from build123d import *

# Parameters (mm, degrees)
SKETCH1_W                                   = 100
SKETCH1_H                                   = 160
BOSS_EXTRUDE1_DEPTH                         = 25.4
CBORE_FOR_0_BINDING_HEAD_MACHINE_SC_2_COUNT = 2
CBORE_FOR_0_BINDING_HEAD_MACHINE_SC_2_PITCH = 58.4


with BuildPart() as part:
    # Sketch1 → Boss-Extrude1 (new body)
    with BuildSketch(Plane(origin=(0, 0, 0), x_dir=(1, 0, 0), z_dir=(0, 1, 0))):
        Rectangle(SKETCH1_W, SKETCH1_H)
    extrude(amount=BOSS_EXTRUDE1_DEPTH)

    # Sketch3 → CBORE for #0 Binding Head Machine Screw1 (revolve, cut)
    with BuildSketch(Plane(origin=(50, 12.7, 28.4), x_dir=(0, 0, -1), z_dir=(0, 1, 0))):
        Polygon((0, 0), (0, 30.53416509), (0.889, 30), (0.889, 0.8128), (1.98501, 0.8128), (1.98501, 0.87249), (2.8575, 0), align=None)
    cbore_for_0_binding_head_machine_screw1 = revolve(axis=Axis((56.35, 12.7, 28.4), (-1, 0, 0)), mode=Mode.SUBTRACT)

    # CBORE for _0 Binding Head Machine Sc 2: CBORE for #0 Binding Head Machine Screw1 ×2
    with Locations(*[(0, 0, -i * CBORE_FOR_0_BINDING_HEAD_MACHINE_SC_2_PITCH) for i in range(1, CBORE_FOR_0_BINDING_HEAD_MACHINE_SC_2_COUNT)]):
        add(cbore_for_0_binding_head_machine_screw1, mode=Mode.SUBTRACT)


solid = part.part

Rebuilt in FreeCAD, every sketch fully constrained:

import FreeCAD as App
import Part
import Sketcher
from FreeCAD import Vector
Q = App.Units.Quantity


def add_polygon(sketch, points):
    """Adds a closed chain of lines whose ends are joined by coincident constraints."""
    first, n = sketch.GeometryCount, len(points)
    for a, b in zip(points, points[1:] + points[:1]):
        sketch.addGeometry(Part.LineSegment(App.Vector(*a, 0), App.Vector(*b, 0)), False)
    for i in range(n):
        sketch.addConstraint(Sketcher.Constraint("Coincident", first + i, 2, first + (i + 1) % n, 1))

doc = App.newDocument("Part")
body = doc.addObject("PartDesign::Body", "Body")

sketch1 = body.newObject("Sketcher::SketchObject", "Sketch")
sketch1.AttachmentSupport = (doc.getObject("XZ_Plane"), [""])
sketch1.MapMode = "FlatFace"
add_polygon(sketch1, [(-50, -80), (-50, 80), (50, 80), (50, -80)])
sketch1.addConstraint(Sketcher.Constraint("Vertical", 0))
sketch1.addConstraint(Sketcher.Constraint("Horizontal", 1))
sketch1.addConstraint(Sketcher.Constraint("Vertical", 2))
sketch1.addConstraint(Sketcher.Constraint("Horizontal", 3))
sketch1.addConstraint(Sketcher.Constraint("Symmetric", 0, 2, 2, 2, -1, 1))
sketch1.addConstraint(Sketcher.Constraint("DistanceX", 1, 1, 1, 2, 100.0))
sketch1.addConstraint(Sketcher.Constraint("DistanceY", 0, 1, 0, 2, 160.0))
pad1 = body.newObject("PartDesign::Pad", "Pad")
pad1.Profile = sketch1
pad1.Length = 25.4
pad1.Reversed = True

sketch2 = body.newObject("Sketcher::SketchObject", "Sketch001")
sketch2.AttachmentSupport = (doc.getObject("XZ_Plane"), [""])
sketch2.MapMode = "FlatFace"
sketch2.AttachmentOffset = App.Placement(Vector(0, 0, -12.7), App.Rotation())
add_polygon(sketch2, [(19.47, 28.4), (50, 28.4), (50, 25.54), (49.13, 26.41), (49.19, 26.41), (49.19, 27.51), (20, 27.51)])
sketch2.addGeometry(Part.LineSegment(Vector(50, 28.4, 0), Vector(19.47, 28.4, 0)), True)
sketch2.addConstraint(Sketcher.Constraint("Horizontal", 0))
sketch2.addConstraint(Sketcher.Constraint("Vertical", 1))
sketch2.addConstraint(Sketcher.Constraint("Horizontal", 3))
sketch2.addConstraint(Sketcher.Constraint("Vertical", 4))
sketch2.addConstraint(Sketcher.Constraint("Horizontal", 5))
sketch2.addConstraint(Sketcher.Constraint("Horizontal", 7))
sketch2.addConstraint(Sketcher.Constraint("Coincident", 7, 1, 0, 2))
sketch2.addConstraint(Sketcher.Constraint("Equal", 0, 7))
sketch2.addConstraint(Sketcher.Constraint("Angle", 2, Q("135 deg")))
sketch2.addConstraint(Sketcher.Constraint("Angle", 6, Q("121 deg")))
sketch2.addConstraint(Sketcher.Constraint("DistanceX", -1, 1, 0, 2, 50.0))
sketch2.addConstraint(Sketcher.Constraint("DistanceX", -1, 1, 5, 2, 20.0))
sketch2.addConstraint(Sketcher.Constraint("DistanceY", -1, 1, 0, 2, 28.4))
sketch2.addConstraint(Sketcher.Constraint("DistanceX", 5, 2, 5, 1, 29.1872))
sketch2.addConstraint(Sketcher.Constraint("DistanceY", 1, 2, 1, 1, 2.8575))
sketch2.addConstraint(Sketcher.Constraint("DistanceY", -1, 1, 4, 2, 27.511))
sketch2.addConstraint(Sketcher.Constraint("DistanceX", 3, 1, 3, 2, 0.05969))
groove = body.newObject("PartDesign::Groove", "Groove")
groove.Profile = sketch2
groove.ReferenceAxis = (sketch2, ["Axis0"])
groove.Angle = 360
doc.recompute()

linearpattern = body.newObject("PartDesign::LinearPattern", "LinearPattern")
linearpattern.Originals = [groove]
linearpattern.Direction = (doc.getObject("Z_Axis"), [""])
linearpattern.Mode = "offset"
linearpattern.Offset = 58.4
linearpattern.Occurrences = 2
linearpattern.Reversed = True
body.Tip = linearpattern

doc.recompute()
